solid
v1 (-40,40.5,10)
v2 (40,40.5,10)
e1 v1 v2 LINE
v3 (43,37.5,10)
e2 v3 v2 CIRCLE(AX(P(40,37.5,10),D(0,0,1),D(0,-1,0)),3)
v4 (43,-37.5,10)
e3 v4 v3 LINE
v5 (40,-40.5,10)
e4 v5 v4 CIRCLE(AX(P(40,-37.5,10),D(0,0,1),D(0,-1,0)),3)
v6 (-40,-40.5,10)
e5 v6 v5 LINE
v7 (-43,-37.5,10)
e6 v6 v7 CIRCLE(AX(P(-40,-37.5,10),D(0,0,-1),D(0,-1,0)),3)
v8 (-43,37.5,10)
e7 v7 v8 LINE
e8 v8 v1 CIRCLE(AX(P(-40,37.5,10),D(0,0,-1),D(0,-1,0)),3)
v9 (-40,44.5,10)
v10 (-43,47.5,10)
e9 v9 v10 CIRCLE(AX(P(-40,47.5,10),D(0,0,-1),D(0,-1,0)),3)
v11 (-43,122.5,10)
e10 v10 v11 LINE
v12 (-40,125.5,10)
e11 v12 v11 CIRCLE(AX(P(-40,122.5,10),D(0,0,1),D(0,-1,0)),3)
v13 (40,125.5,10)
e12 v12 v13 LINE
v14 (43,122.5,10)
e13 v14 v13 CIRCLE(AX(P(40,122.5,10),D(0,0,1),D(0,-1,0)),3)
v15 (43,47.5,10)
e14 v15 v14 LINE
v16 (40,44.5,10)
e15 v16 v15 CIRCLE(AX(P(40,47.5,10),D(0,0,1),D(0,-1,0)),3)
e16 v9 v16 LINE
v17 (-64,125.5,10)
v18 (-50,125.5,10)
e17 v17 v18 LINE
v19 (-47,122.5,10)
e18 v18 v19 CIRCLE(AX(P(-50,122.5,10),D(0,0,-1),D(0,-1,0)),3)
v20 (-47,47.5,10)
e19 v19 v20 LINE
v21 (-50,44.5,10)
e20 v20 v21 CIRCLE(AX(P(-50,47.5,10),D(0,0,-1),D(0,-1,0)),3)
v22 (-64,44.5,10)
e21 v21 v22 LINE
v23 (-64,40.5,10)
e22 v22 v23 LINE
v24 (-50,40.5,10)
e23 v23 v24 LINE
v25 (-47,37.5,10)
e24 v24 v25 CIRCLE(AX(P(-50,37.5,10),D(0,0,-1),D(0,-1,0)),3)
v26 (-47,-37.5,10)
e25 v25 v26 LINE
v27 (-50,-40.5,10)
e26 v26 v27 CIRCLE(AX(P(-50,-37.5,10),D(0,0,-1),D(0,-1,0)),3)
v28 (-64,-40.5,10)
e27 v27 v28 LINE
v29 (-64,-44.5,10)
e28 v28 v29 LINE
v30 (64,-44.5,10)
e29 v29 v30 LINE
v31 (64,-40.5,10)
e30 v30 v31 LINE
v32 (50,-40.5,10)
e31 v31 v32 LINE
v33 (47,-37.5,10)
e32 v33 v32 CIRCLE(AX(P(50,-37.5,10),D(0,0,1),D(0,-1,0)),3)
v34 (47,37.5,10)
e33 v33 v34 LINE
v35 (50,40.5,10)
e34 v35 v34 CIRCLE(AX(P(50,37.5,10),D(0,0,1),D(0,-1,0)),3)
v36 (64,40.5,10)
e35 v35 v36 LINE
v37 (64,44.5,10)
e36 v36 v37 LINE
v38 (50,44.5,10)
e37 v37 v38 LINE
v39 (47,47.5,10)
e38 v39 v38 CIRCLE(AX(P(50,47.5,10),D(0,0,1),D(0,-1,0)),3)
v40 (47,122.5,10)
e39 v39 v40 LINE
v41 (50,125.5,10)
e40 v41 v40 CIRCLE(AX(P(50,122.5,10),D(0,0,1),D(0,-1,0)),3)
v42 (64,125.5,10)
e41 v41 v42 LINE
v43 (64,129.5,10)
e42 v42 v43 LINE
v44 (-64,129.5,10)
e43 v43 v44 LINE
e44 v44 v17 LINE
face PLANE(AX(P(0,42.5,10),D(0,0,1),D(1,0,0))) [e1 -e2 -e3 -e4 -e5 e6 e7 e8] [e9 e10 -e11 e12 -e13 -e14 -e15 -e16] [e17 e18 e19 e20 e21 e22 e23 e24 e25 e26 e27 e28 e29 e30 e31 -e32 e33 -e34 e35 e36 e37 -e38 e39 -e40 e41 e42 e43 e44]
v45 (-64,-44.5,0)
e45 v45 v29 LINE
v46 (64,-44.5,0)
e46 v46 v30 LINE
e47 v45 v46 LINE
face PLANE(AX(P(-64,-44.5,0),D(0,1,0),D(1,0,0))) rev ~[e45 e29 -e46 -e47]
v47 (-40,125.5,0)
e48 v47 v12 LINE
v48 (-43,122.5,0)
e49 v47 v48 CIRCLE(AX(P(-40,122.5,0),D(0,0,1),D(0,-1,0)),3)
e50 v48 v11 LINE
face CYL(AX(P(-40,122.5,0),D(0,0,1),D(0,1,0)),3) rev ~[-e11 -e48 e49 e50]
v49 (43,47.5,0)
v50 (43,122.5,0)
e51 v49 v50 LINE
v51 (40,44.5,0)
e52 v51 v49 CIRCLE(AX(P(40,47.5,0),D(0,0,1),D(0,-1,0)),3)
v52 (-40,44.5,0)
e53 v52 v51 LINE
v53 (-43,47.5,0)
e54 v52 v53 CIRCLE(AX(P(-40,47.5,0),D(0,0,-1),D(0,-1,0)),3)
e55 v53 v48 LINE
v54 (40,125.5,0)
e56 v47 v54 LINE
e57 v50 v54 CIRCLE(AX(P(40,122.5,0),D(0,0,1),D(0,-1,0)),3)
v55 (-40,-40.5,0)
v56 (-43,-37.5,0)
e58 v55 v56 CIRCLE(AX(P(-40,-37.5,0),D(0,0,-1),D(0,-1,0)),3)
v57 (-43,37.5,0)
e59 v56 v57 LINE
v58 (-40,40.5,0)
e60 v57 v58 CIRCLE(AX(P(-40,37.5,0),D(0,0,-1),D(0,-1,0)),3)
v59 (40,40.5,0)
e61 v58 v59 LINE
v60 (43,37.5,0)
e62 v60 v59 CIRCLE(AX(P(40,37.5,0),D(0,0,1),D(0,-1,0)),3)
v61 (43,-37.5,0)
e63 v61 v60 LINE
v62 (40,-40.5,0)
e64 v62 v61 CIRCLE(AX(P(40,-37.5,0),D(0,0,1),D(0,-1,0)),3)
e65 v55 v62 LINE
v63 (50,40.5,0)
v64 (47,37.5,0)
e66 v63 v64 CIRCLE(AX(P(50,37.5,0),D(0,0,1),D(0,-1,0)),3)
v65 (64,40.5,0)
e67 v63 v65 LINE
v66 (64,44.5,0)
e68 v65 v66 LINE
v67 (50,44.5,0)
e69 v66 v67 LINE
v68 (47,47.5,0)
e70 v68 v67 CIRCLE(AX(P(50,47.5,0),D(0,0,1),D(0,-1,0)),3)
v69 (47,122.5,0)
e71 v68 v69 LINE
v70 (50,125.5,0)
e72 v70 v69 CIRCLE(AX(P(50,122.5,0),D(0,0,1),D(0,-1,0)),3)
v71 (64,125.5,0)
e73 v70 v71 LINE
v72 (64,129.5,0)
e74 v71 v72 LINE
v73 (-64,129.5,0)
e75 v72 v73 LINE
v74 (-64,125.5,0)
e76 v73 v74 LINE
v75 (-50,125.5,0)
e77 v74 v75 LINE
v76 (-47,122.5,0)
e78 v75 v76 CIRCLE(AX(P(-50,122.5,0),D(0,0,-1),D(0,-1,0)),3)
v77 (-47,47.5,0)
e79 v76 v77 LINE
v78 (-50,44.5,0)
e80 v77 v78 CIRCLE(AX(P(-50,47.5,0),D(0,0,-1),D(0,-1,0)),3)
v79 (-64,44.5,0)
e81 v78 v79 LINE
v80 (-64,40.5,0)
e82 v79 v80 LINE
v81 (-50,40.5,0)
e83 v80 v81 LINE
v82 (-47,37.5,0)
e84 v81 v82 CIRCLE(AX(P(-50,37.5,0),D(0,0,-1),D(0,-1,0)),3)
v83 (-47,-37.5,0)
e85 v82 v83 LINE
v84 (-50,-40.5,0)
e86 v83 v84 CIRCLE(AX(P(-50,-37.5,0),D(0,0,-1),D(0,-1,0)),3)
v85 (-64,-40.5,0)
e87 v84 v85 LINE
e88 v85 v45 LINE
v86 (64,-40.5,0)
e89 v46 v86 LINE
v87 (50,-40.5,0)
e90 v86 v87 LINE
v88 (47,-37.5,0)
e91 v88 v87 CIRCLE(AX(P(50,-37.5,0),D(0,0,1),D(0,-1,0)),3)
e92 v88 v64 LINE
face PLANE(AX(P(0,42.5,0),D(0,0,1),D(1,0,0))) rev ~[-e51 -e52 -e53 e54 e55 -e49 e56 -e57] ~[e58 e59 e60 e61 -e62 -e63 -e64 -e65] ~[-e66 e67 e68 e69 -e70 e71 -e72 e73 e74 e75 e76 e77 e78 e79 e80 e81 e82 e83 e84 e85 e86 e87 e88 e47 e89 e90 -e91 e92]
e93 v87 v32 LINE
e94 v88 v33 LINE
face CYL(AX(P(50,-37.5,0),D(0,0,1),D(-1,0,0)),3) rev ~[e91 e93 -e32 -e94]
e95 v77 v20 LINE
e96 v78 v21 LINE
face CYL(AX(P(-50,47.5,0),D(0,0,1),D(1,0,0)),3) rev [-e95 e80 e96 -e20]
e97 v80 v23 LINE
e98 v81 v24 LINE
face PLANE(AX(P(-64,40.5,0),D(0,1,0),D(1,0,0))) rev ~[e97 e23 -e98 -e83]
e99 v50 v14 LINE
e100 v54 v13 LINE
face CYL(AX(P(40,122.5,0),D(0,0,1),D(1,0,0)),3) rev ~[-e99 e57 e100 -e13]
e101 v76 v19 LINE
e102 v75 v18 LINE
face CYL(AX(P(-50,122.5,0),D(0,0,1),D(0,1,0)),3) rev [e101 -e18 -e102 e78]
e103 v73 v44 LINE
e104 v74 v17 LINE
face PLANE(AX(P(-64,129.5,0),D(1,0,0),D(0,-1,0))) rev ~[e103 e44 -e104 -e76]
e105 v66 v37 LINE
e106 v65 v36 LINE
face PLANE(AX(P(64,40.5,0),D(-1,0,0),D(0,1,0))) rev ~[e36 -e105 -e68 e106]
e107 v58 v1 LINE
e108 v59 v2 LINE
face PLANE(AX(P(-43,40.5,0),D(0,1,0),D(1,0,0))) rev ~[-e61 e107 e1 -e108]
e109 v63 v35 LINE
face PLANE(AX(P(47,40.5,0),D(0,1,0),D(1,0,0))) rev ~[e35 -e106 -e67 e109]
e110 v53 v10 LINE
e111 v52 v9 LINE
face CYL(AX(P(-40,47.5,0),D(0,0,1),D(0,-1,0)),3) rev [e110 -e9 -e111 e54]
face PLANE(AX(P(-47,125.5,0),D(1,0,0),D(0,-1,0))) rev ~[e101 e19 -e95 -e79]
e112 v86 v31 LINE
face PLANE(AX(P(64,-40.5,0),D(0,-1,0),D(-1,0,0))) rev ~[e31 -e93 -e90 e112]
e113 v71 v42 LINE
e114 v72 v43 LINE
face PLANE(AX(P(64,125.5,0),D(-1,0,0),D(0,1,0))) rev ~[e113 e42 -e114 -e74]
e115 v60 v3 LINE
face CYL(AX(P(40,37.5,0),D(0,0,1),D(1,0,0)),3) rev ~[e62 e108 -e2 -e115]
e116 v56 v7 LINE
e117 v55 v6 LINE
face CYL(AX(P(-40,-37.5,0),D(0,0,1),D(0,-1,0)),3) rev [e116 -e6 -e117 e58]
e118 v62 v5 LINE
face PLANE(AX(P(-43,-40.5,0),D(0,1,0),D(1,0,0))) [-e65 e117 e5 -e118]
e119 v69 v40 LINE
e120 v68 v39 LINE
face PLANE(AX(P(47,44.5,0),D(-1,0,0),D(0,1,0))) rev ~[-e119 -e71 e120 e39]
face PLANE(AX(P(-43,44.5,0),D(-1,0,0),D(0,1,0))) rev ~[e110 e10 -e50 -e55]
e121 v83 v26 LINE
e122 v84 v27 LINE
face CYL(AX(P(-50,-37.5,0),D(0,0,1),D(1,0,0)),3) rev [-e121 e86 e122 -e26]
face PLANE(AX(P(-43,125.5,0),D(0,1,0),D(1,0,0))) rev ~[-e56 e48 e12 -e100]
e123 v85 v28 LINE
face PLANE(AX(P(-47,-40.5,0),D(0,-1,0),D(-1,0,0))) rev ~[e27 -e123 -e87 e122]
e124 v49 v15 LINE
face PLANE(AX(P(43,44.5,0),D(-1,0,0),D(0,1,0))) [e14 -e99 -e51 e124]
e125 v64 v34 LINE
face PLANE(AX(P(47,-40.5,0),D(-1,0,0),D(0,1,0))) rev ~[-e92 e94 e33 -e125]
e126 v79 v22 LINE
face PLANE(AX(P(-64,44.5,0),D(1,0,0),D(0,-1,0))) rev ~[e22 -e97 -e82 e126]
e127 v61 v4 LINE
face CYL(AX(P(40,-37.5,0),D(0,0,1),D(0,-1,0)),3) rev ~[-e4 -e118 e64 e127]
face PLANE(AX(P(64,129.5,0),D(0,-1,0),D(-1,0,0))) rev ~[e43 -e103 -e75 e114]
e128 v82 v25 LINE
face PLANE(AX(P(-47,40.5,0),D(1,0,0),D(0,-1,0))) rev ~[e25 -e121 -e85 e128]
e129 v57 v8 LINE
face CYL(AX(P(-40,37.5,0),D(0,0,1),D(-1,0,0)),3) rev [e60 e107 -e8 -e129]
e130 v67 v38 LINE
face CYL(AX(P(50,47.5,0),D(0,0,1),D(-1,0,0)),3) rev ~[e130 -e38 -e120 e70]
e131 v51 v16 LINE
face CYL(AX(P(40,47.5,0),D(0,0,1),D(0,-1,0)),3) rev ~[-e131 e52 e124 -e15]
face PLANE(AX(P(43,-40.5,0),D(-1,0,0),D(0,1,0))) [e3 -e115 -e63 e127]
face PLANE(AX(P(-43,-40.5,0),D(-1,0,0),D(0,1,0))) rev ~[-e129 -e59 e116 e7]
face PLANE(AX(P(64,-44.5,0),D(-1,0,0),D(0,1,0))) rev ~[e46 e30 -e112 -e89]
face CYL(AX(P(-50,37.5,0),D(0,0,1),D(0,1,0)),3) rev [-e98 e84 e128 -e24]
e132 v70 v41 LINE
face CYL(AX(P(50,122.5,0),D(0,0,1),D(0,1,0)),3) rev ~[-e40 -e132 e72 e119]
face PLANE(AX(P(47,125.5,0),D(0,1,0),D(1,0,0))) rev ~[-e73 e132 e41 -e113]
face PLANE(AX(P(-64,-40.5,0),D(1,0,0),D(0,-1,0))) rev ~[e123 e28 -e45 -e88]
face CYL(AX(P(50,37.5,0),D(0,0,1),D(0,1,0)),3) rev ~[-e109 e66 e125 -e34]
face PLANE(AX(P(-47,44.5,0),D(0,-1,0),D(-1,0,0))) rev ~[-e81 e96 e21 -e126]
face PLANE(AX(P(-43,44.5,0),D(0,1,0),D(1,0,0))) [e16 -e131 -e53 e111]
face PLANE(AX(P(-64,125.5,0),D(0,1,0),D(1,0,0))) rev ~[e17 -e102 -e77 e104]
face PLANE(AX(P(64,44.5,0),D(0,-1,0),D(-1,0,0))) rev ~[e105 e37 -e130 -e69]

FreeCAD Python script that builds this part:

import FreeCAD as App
import Part
import Sketcher

V = App.Vector


def edges_at(feature, points):
    """Names of the edges that pass closest to the given points."""
    edges = feature.Shape.Edges
    near = lambda p: min(range(len(edges)), key=lambda i: edges[i].distToShape(Part.Vertex(*p))[0])
    return sorted({f"Edge{near(p) + 1}" for p in points})

doc = App.newDocument("Part")
params = doc.addObject("Spreadsheet::Sheet", "Params")
for row, (alias, value) in enumerate([
    ("sketch1_width", "17 mm"),
    ("sketch1_width2", "128 mm"),
    ("sketch1_width3", "86 mm"),
    ("sketch1_height", "4 mm"),
    ("sketch1_height2", "81 mm"),
    ("pad1_length", "10 mm"),
    ("fillet_radius", "3 mm"),
], start=1):
    params.set(f"A{row}", alias)
    params.set(f"B{row}", "=" + value)
    params.setAlias(f"B{row}", alias)

body = doc.addObject("PartDesign::Body", "Body")

sketch1 = doc.addObject("Sketcher::SketchObject", "Sketch")
body.addObject(sketch1)
sketch1.AttachmentSupport = (doc.XY_Plane, [""])
sketch1.MapMode = "FlatFace"
sketch1.addGeometry([
    Part.LineSegment(V(-64, 129.5, 0), V(-64, 125.5, 0)),
    Part.LineSegment(V(-64, 125.5, 0), V(-47, 125.5, 0)),
    Part.LineSegment(V(-47, 125.5, 0), V(-47, 44.5, 0)),
    Part.LineSegment(V(-47, 44.5, 0), V(-64, 44.5, 0)),
    Part.LineSegment(V(-64, 44.5, 0), V(-64, 40.5, 0)),
    Part.LineSegment(V(-64, 40.5, 0), V(-47, 40.5, 0)),
    Part.LineSegment(V(-47, 40.5, 0), V(-47, -40.5, 0)),
    Part.LineSegment(V(-47, -40.5, 0), V(-64, -40.5, 0)),
    Part.LineSegment(V(-64, -40.5, 0), V(-64, -44.5, 0)),
    Part.LineSegment(V(-64, -44.5, 0), V(64, -44.5, 0)),
    Part.LineSegment(V(64, -44.5, 0), V(64, -40.5, 0)),
    Part.LineSegment(V(64, -40.5, 0), V(47, -40.5, 0)),
    Part.LineSegment(V(47, -40.5, 0), V(47, 40.5, 0)),
    Part.LineSegment(V(47, 40.5, 0), V(64, 40.5, 0)),
    Part.LineSegment(V(64, 40.5, 0), V(64, 44.5, 0)),
    Part.LineSegment(V(64, 44.5, 0), V(47, 44.5, 0)),
    Part.LineSegment(V(47, 44.5, 0), V(47, 125.5, 0)),
    Part.LineSegment(V(47, 125.5, 0), V(64, 125.5, 0)),
    Part.LineSegment(V(64, 125.5, 0), V(64, 129.5, 0)),
    Part.LineSegment(V(64, 129.5, 0), V(-64, 129.5, 0)),
    Part.LineSegment(V(43, -40.5, 0), V(-43, -40.5, 0)),
    Part.LineSegment(V(-43, -40.5, 0), V(-43, 40.5, 0)),
    Part.LineSegment(V(-43, 40.5, 0), V(43, 40.5, 0)),
    Part.LineSegment(V(43, 40.5, 0), V(43, -40.5, 0)),
    Part.LineSegment(V(43, 44.5, 0), V(-43, 44.5, 0)),
    Part.LineSegment(V(-43, 44.5, 0), V(-43, 125.5, 0)),
    Part.LineSegment(V(-43, 125.5, 0), V(43, 125.5, 0)),
    Part.LineSegment(V(43, 125.5, 0), V(43, 44.5, 0)),
], False)
sketch1.addConstraint([
    Sketcher.Constraint("Coincident", 0, 2, 1, 1),
    Sketcher.Constraint("Coincident", 1, 2, 2, 1),
    Sketcher.Constraint("Coincident", 2, 2, 3, 1),
    Sketcher.Constraint("Coincident", 3, 2, 4, 1),
    Sketcher.Constraint("Coincident", 4, 2, 5, 1),
    Sketcher.Constraint("Coincident", 5, 2, 6, 1),
    Sketcher.Constraint("Coincident", 6, 2, 7, 1),
    Sketcher.Constraint("Coincident", 7, 2, 8, 1),
    Sketcher.Constraint("Coincident", 8, 2, 9, 1),
    Sketcher.Constraint("Coincident", 9, 2, 10, 1),
    Sketcher.Constraint("Coincident", 10, 2, 11, 1),
    Sketcher.Constraint("Coincident", 11, 2, 12, 1),
    Sketcher.Constraint("Coincident", 12, 2, 13, 1),
    Sketcher.Constraint("Coincident", 13, 2, 14, 1),
    Sketcher.Constraint("Coincident", 14, 2, 15, 1),
    Sketcher.Constraint("Coincident", 15, 2, 16, 1),
    Sketcher.Constraint("Coincident", 16, 2, 17, 1),
    Sketcher.Constraint("Coincident", 17, 2, 18, 1),
    Sketcher.Constraint("Coincident", 18, 2, 19, 1),
    Sketcher.Constraint("Coincident", 19, 2, 0, 1),
    Sketcher.Constraint("Coincident", 20, 2, 21, 1),
    Sketcher.Constraint("Coincident", 21, 2, 22, 1),
    Sketcher.Constraint("Coincident", 22, 2, 23, 1),
    Sketcher.Constraint("Coincident", 23, 2, 20, 1),
    Sketcher.Constraint("Coincident", 24, 2, 25, 1),
    Sketcher.Constraint("Coincident", 25, 2, 26, 1),
    Sketcher.Constraint("Coincident", 26, 2, 27, 1),
    Sketcher.Constraint("Coincident", 27, 2, 24, 1),
    Sketcher.Constraint("Vertical", 0),
    Sketcher.Constraint("Horizontal", 1),
    Sketcher.Constraint("Vertical", 2),
    Sketcher.Constraint("Horizontal", 3),
    Sketcher.Constraint("Vertical", 4),
    Sketcher.Constraint("Horizontal", 5),
    Sketcher.Constraint("Vertical", 6),
    Sketcher.Constraint("Horizontal", 7),
    Sketcher.Constraint("Vertical", 8),
    Sketcher.Constraint("Horizontal", 9),
    Sketcher.Constraint("Vertical", 10),
    Sketcher.Constraint("Horizontal", 11),
    Sketcher.Constraint("Vertical", 12),
    Sketcher.Constraint("Horizontal", 13),
    Sketcher.Constraint("Vertical", 14),
    Sketcher.Constraint("Horizontal", 15),
    Sketcher.Constraint("Vertical", 16),
    Sketcher.Constraint("Horizontal", 17),
    Sketcher.Constraint("Vertical", 18),
    Sketcher.Constraint("Horizontal", 19),
    Sketcher.Constraint("Horizontal", 20),
    Sketcher.Constraint("Vertical", 21),
    Sketcher.Constraint("Horizontal", 22),
    Sketcher.Constraint("Vertical", 23),
    Sketcher.Constraint("Horizontal", 24),
    Sketcher.Constraint("Vertical", 25),
    Sketcher.Constraint("Horizontal", 26),
    Sketcher.Constraint("Vertical", 27),
    Sketcher.Constraint("Symmetric", 3, 2, 9, 2, -1, 1),
    Sketcher.Constraint("Symmetric", 5, 2, 11, 2, -1, 1),
    Sketcher.Constraint("Symmetric", 7, 2, 13, 2, -1, 1),
    Sketcher.Constraint("Symmetric", 20, 2, 22, 2, -1, 1),
    Sketcher.Constraint("Symmetric", 7, 2, 10, 2, -2),
    Sketcher.Constraint("Symmetric", 2, 2, 15, 2, -2),
    Sketcher.Constraint("Symmetric", 0, 2, 17, 2, -2),
    Sketcher.Constraint("Horizontal", 11, 2, 20, 2),
    Sketcher.Constraint("Horizontal", 15, 2, 24, 2),
    Sketcher.Constraint("Horizontal", 17, 2, 25, 2),
    Sketcher.Constraint("Vertical", 0, 2, 3, 2),
    Sketcher.Constraint("Vertical", 2, 2, 5, 2),
    Sketcher.Constraint("Vertical", 21, 2, 24, 2),
    Sketcher.Constraint("Vertical", 23, 2, 26, 2),
    Sketcher.Constraint("Equal", 0, 4),
    Sketcher.Constraint("Equal", 2, 6),
    Sketcher.Constraint("DistanceX", 1, 1, 1, 2, 17.0),
    Sketcher.Constraint("DistanceX", 9, 1, 9, 2, 128.0),
    Sketcher.Constraint("DistanceX", 20, 2, 20, 1, 86.0),
    Sketcher.Constraint("DistanceY", 0, 2, 0, 1, 4.0),
    Sketcher.Constraint("DistanceY", 2, 2, 2, 1, 81.0),
])
sketch1.setExpression("Constraints[72]", "Params.sketch1_width")
sketch1.setExpression("Constraints[73]", "Params.sketch1_width2")
sketch1.setExpression("Constraints[74]", "Params.sketch1_width3")
sketch1.setExpression("Constraints[75]", "Params.sketch1_height")
sketch1.setExpression("Constraints[76]", "Params.sketch1_height2")
pad1 = doc.addObject("PartDesign::Pad", "Pad")
body.addObject(pad1)
pad1.Profile = sketch1
pad1.setExpression("Length", "Params.pad1_length")
doc.recompute()

fillet = doc.addObject("PartDesign::Fillet", "Fillet")
body.addObject(fillet)
fillet.Base = (pad1, edges_at(pad1, [
    (-43, -40.5, 5),
    (43, -40.5, 5),
    (43, 40.5, 5),
    (-43, 40.5, 5),
    (-47, 44.5, 5),
    (-47, 125.5, 5),
    (47, 125.5, 5),
    (47, 44.5, 5),
    (47, 40.5, 5),
    (47, -40.5, 5),
    (-47, -40.5, 5),
    (-47, 40.5, 5),
    (43, 44.5, 5),
    (43, 125.5, 5),
    (-43, 125.5, 5),
    (-43, 44.5, 5),
]))
fillet.setExpression("Radius", "Params.fillet_radius")

doc.recompute()
